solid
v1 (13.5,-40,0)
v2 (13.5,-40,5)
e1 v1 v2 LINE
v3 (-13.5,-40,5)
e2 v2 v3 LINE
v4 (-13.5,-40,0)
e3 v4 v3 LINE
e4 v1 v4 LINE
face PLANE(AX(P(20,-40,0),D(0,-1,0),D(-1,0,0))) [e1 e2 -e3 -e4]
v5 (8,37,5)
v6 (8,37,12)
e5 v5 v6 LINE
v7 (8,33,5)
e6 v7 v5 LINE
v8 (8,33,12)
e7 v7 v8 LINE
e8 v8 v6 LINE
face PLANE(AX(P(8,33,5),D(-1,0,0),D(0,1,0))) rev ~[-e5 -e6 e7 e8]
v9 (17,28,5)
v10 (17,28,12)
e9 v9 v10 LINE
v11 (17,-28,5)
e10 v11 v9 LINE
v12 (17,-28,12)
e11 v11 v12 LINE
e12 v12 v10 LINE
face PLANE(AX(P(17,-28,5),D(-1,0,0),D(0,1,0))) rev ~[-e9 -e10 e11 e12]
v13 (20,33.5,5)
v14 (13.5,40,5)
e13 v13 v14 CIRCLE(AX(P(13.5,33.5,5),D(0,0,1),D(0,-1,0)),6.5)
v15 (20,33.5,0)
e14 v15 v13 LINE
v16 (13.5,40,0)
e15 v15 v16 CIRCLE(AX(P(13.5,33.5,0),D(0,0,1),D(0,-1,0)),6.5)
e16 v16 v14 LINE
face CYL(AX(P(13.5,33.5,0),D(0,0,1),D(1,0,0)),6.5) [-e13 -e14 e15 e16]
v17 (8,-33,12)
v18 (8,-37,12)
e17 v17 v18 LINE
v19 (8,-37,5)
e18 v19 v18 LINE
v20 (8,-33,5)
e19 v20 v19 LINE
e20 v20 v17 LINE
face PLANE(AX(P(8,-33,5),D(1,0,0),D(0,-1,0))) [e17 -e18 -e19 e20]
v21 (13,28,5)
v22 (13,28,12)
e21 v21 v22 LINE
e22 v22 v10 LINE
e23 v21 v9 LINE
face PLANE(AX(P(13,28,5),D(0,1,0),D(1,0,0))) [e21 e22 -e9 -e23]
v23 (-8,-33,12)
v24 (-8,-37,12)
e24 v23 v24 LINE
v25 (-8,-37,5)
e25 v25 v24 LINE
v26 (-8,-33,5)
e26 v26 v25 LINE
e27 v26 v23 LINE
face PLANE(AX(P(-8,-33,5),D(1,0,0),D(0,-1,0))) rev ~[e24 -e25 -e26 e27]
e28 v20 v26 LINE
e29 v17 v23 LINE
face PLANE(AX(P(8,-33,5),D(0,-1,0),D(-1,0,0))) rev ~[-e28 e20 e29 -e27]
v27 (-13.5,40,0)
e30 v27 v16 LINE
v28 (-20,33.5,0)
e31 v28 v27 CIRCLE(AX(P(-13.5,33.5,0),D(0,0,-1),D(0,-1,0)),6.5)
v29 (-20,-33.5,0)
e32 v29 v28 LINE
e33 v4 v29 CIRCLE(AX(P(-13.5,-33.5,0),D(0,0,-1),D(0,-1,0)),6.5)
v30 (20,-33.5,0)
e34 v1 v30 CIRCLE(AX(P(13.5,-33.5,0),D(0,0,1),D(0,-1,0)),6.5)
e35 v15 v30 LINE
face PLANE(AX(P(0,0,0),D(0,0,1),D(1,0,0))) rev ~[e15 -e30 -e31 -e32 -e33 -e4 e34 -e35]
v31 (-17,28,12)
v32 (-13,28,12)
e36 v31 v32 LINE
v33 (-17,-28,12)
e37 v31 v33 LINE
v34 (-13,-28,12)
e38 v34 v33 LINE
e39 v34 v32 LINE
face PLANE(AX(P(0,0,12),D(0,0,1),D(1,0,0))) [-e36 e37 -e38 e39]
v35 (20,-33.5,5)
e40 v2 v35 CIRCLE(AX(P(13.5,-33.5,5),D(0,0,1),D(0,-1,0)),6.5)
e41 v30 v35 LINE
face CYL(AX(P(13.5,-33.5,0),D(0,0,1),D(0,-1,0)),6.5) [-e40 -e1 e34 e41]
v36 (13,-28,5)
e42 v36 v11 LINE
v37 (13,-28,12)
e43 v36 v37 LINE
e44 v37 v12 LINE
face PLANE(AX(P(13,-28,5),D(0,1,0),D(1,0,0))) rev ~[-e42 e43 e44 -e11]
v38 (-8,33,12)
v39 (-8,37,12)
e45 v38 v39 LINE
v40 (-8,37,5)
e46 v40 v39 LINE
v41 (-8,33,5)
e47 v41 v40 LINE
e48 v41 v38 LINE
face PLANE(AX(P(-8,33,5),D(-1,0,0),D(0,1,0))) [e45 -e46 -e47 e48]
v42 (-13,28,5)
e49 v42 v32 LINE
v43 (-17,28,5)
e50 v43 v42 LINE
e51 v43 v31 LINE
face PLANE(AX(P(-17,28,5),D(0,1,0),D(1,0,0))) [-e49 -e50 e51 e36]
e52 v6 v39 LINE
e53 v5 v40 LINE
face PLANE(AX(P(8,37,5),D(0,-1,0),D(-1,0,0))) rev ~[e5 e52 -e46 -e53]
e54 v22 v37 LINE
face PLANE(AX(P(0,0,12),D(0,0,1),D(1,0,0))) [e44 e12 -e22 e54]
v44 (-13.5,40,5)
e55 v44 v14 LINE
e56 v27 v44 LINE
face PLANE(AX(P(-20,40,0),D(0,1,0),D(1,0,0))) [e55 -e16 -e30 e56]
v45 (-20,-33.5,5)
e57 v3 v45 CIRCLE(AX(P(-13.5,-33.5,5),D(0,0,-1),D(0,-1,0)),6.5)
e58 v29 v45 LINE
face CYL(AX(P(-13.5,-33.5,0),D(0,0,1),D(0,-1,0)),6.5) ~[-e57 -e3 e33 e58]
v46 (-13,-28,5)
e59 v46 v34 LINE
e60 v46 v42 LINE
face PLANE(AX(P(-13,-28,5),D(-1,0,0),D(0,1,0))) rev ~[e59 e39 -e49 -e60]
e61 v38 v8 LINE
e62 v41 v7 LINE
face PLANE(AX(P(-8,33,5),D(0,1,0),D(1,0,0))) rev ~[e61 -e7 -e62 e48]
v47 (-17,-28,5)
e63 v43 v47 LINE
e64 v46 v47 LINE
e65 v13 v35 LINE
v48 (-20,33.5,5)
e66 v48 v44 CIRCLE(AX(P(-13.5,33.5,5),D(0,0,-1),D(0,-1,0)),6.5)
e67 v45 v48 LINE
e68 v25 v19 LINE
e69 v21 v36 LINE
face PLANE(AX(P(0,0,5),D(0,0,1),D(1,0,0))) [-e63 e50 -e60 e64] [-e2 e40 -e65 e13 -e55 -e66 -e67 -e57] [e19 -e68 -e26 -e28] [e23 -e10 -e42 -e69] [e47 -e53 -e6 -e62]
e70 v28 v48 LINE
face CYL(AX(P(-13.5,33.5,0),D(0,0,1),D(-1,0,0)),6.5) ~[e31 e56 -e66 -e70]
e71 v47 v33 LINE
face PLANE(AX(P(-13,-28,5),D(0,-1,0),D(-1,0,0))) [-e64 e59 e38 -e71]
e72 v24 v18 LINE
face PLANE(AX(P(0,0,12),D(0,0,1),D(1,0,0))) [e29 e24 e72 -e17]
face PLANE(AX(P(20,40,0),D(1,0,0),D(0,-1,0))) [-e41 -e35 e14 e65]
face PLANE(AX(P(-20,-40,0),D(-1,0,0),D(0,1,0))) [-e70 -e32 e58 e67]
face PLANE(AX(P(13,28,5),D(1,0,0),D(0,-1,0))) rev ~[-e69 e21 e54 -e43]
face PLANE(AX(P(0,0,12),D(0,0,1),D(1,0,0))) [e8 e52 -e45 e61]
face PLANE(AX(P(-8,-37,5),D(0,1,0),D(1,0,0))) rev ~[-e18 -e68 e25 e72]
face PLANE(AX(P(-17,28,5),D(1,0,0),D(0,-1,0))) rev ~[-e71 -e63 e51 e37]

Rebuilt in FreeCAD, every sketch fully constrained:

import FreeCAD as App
import Part
import Sketcher

V = App.Vector
Q = App.Units.Quantity


def edges_at(feature, points):
    """Names of the edges that pass closest to the given points."""
    edges = feature.Shape.Edges
    near = lambda p: min(range(len(edges)), key=lambda i: edges[i].distToShape(Part.Vertex(*p))[0])
    return sorted({f"Edge{near(p) + 1}" for p in points})

doc = App.newDocument("Part")
body = doc.addObject("PartDesign::Body", "Body")

sketch1 = body.newObject("Sketcher::SketchObject", "Sketch")
sketch1.AttachmentSupport = (doc.getObject("XY_Plane"), [""])
sketch1.MapMode = "FlatFace"
sketch1.addGeometry([
    Part.LineSegment(V(-20, -40, 0), V(20, -40, 0)),
    Part.LineSegment(V(20, -40, 0), V(20, 40, 0)),
    Part.LineSegment(V(20, 40, 0), V(-20, 40, 0)),
    Part.LineSegment(V(-20, 40, 0), V(-20, -40, 0)),
], False)
sketch1.addConstraint([
    Sketcher.Constraint("Coincident", 0, 2, 1, 1),
    Sketcher.Constraint("Coincident", 1, 2, 2, 1),
    Sketcher.Constraint("Coincident", 2, 2, 3, 1),
    Sketcher.Constraint("Coincident", 3, 2, 0, 1),
    Sketcher.Constraint("Horizontal", 0),
    Sketcher.Constraint("Vertical", 1),
    Sketcher.Constraint("Horizontal", 2),
    Sketcher.Constraint("Vertical", 3),
    Sketcher.Constraint("Symmetric", 0, 2, 2, 2, -1, 1),
    Sketcher.Constraint("DistanceX", 0, 1, 0, 2, Q("40 mm")),
    Sketcher.Constraint("DistanceY", 1, 1, 1, 2, Q("80 mm")),
])
pad1 = body.newObject("PartDesign::Pad", "Pad")
pad1.Profile = sketch1
pad1.Length = 5

sketch2 = body.newObject("Sketcher::SketchObject", "Sketch001")
sketch2.AttachmentSupport = (doc.getObject("XY_Plane"), [""])
sketch2.MapMode = "FlatFace"
sketch2.AttachmentOffset = App.Placement(V(0, 0, 5), App.Rotation())
sketch2.addGeometry([
    Part.LineSegment(V(8, 33, 0), V(8, 37, 0)),
    Part.LineSegment(V(8, 37, 0), V(-8, 37, 0)),
    Part.LineSegment(V(-8, 37, 0), V(-8, 33, 0)),
    Part.LineSegment(V(-8, 33, 0), V(8, 33, 0)),
    Part.LineSegment(V(17, -28, 0), V(17, 28, 0)),
    Part.LineSegment(V(17, 28, 0), V(13, 28, 0)),
    Part.LineSegment(V(13, 28, 0), V(13, -28, 0)),
    Part.LineSegment(V(13, -28, 0), V(17, -28, 0)),
    Part.LineSegment(V(-13, 28, 0), V(-17, 28, 0)),
    Part.LineSegment(V(-17, 28, 0), V(-17, -28, 0)),
    Part.LineSegment(V(-17, -28, 0), V(-13, -28, 0)),
    Part.LineSegment(V(-13, -28, 0), V(-13, 28, 0)),
    Part.LineSegment(V(-8, -37, 0), V(8, -37, 0)),
    Part.LineSegment(V(8, -37, 0), V(8, -33, 0)),
    Part.LineSegment(V(8, -33, 0), V(-8, -33, 0)),
    Part.LineSegment(V(-8, -33, 0), V(-8, -37, 0)),
], False)
sketch2.addConstraint([
    Sketcher.Constraint("Coincident", 0, 2, 1, 1),
    Sketcher.Constraint("Coincident", 1, 2, 2, 1),
    Sketcher.Constraint("Coincident", 2, 2, 3, 1),
    Sketcher.Constraint("Coincident", 3, 2, 0, 1),
    Sketcher.Constraint("Coincident", 4, 2, 5, 1),
    Sketcher.Constraint("Coincident", 5, 2, 6, 1),
    Sketcher.Constraint("Coincident", 6, 2, 7, 1),
    Sketcher.Constraint("Coincident", 7, 2, 4, 1),
    Sketcher.Constraint("Coincident", 8, 2, 9, 1),
    Sketcher.Constraint("Coincident", 9, 2, 10, 1),
    Sketcher.Constraint("Coincident", 10, 2, 11, 1),
    Sketcher.Constraint("Coincident", 11, 2, 8, 1),
    Sketcher.Constraint("Coincident", 12, 2, 13, 1),
    Sketcher.Constraint("Coincident", 13, 2, 14, 1),
    Sketcher.Constraint("Coincident", 14, 2, 15, 1),
    Sketcher.Constraint("Coincident", 15, 2, 12, 1),
    Sketcher.Constraint("Vertical", 0),
    Sketcher.Constraint("Horizontal", 1),
    Sketcher.Constraint("Vertical", 2),
    Sketcher.Constraint("Horizontal", 3),
    Sketcher.Constraint("Vertical", 4),
    Sketcher.Constraint("Horizontal", 5),
    Sketcher.Constraint("Vertical", 6),
    Sketcher.Constraint("Horizontal", 7),
    Sketcher.Constraint("Horizontal", 8),
    Sketcher.Constraint("Vertical", 9),
    Sketcher.Constraint("Horizontal", 10),
    Sketcher.Constraint("Vertical", 11),
    Sketcher.Constraint("Horizontal", 12),
    Sketcher.Constraint("Vertical", 13),
    Sketcher.Constraint("Horizontal", 14),
    Sketcher.Constraint("Vertical", 15),
    Sketcher.Constraint("Symmetric", 7, 2, 8, 2, -1, 1),
    Sketcher.Constraint("Symmetric", 5, 2, 10, 2, -1, 1),
    Sketcher.Constraint("Symmetric", 1, 2, 12, 2, -1, 1),
    Sketcher.Constraint("Symmetric", 3, 2, 14, 2, -1, 1),
    Sketcher.Constraint("Horizontal", 5, 2, 8, 2),
    Sketcher.Constraint("Vertical", 3, 2, 12, 2),
    Sketcher.Constraint("Equal", 10, 0),
    Sketcher.Constraint("DistanceX", 5, 2, 5, 1, Q("4 mm")),
    Sketcher.Constraint("DistanceY", 4, 2, 3, 2, Q("5 mm")),
    Sketcher.Constraint("DistanceX", 3, 2, 5, 2, Q("5 mm")),
    Sketcher.Constraint("DistanceX", 1, 2, 1, 1, Q("16 mm")),
    Sketcher.Constraint("DistanceY", 4, 1, 4, 2, Q("56 mm")),
])
pad2 = body.newObject("PartDesign::Pad", "Pad001")
pad2.Profile = sketch2
pad2.Length = 7
doc.recompute()

fillet = body.newObject("PartDesign::Fillet", "Fillet")
fillet.Base = (pad2, edges_at(pad2, [
    (20, 40, 2.5),
    (-20, 40, 2.5),
    (20, -40, 2.5),
    (-20, -40, 2.5),
]))
fillet.Radius = 6.5

doc.recompute()
